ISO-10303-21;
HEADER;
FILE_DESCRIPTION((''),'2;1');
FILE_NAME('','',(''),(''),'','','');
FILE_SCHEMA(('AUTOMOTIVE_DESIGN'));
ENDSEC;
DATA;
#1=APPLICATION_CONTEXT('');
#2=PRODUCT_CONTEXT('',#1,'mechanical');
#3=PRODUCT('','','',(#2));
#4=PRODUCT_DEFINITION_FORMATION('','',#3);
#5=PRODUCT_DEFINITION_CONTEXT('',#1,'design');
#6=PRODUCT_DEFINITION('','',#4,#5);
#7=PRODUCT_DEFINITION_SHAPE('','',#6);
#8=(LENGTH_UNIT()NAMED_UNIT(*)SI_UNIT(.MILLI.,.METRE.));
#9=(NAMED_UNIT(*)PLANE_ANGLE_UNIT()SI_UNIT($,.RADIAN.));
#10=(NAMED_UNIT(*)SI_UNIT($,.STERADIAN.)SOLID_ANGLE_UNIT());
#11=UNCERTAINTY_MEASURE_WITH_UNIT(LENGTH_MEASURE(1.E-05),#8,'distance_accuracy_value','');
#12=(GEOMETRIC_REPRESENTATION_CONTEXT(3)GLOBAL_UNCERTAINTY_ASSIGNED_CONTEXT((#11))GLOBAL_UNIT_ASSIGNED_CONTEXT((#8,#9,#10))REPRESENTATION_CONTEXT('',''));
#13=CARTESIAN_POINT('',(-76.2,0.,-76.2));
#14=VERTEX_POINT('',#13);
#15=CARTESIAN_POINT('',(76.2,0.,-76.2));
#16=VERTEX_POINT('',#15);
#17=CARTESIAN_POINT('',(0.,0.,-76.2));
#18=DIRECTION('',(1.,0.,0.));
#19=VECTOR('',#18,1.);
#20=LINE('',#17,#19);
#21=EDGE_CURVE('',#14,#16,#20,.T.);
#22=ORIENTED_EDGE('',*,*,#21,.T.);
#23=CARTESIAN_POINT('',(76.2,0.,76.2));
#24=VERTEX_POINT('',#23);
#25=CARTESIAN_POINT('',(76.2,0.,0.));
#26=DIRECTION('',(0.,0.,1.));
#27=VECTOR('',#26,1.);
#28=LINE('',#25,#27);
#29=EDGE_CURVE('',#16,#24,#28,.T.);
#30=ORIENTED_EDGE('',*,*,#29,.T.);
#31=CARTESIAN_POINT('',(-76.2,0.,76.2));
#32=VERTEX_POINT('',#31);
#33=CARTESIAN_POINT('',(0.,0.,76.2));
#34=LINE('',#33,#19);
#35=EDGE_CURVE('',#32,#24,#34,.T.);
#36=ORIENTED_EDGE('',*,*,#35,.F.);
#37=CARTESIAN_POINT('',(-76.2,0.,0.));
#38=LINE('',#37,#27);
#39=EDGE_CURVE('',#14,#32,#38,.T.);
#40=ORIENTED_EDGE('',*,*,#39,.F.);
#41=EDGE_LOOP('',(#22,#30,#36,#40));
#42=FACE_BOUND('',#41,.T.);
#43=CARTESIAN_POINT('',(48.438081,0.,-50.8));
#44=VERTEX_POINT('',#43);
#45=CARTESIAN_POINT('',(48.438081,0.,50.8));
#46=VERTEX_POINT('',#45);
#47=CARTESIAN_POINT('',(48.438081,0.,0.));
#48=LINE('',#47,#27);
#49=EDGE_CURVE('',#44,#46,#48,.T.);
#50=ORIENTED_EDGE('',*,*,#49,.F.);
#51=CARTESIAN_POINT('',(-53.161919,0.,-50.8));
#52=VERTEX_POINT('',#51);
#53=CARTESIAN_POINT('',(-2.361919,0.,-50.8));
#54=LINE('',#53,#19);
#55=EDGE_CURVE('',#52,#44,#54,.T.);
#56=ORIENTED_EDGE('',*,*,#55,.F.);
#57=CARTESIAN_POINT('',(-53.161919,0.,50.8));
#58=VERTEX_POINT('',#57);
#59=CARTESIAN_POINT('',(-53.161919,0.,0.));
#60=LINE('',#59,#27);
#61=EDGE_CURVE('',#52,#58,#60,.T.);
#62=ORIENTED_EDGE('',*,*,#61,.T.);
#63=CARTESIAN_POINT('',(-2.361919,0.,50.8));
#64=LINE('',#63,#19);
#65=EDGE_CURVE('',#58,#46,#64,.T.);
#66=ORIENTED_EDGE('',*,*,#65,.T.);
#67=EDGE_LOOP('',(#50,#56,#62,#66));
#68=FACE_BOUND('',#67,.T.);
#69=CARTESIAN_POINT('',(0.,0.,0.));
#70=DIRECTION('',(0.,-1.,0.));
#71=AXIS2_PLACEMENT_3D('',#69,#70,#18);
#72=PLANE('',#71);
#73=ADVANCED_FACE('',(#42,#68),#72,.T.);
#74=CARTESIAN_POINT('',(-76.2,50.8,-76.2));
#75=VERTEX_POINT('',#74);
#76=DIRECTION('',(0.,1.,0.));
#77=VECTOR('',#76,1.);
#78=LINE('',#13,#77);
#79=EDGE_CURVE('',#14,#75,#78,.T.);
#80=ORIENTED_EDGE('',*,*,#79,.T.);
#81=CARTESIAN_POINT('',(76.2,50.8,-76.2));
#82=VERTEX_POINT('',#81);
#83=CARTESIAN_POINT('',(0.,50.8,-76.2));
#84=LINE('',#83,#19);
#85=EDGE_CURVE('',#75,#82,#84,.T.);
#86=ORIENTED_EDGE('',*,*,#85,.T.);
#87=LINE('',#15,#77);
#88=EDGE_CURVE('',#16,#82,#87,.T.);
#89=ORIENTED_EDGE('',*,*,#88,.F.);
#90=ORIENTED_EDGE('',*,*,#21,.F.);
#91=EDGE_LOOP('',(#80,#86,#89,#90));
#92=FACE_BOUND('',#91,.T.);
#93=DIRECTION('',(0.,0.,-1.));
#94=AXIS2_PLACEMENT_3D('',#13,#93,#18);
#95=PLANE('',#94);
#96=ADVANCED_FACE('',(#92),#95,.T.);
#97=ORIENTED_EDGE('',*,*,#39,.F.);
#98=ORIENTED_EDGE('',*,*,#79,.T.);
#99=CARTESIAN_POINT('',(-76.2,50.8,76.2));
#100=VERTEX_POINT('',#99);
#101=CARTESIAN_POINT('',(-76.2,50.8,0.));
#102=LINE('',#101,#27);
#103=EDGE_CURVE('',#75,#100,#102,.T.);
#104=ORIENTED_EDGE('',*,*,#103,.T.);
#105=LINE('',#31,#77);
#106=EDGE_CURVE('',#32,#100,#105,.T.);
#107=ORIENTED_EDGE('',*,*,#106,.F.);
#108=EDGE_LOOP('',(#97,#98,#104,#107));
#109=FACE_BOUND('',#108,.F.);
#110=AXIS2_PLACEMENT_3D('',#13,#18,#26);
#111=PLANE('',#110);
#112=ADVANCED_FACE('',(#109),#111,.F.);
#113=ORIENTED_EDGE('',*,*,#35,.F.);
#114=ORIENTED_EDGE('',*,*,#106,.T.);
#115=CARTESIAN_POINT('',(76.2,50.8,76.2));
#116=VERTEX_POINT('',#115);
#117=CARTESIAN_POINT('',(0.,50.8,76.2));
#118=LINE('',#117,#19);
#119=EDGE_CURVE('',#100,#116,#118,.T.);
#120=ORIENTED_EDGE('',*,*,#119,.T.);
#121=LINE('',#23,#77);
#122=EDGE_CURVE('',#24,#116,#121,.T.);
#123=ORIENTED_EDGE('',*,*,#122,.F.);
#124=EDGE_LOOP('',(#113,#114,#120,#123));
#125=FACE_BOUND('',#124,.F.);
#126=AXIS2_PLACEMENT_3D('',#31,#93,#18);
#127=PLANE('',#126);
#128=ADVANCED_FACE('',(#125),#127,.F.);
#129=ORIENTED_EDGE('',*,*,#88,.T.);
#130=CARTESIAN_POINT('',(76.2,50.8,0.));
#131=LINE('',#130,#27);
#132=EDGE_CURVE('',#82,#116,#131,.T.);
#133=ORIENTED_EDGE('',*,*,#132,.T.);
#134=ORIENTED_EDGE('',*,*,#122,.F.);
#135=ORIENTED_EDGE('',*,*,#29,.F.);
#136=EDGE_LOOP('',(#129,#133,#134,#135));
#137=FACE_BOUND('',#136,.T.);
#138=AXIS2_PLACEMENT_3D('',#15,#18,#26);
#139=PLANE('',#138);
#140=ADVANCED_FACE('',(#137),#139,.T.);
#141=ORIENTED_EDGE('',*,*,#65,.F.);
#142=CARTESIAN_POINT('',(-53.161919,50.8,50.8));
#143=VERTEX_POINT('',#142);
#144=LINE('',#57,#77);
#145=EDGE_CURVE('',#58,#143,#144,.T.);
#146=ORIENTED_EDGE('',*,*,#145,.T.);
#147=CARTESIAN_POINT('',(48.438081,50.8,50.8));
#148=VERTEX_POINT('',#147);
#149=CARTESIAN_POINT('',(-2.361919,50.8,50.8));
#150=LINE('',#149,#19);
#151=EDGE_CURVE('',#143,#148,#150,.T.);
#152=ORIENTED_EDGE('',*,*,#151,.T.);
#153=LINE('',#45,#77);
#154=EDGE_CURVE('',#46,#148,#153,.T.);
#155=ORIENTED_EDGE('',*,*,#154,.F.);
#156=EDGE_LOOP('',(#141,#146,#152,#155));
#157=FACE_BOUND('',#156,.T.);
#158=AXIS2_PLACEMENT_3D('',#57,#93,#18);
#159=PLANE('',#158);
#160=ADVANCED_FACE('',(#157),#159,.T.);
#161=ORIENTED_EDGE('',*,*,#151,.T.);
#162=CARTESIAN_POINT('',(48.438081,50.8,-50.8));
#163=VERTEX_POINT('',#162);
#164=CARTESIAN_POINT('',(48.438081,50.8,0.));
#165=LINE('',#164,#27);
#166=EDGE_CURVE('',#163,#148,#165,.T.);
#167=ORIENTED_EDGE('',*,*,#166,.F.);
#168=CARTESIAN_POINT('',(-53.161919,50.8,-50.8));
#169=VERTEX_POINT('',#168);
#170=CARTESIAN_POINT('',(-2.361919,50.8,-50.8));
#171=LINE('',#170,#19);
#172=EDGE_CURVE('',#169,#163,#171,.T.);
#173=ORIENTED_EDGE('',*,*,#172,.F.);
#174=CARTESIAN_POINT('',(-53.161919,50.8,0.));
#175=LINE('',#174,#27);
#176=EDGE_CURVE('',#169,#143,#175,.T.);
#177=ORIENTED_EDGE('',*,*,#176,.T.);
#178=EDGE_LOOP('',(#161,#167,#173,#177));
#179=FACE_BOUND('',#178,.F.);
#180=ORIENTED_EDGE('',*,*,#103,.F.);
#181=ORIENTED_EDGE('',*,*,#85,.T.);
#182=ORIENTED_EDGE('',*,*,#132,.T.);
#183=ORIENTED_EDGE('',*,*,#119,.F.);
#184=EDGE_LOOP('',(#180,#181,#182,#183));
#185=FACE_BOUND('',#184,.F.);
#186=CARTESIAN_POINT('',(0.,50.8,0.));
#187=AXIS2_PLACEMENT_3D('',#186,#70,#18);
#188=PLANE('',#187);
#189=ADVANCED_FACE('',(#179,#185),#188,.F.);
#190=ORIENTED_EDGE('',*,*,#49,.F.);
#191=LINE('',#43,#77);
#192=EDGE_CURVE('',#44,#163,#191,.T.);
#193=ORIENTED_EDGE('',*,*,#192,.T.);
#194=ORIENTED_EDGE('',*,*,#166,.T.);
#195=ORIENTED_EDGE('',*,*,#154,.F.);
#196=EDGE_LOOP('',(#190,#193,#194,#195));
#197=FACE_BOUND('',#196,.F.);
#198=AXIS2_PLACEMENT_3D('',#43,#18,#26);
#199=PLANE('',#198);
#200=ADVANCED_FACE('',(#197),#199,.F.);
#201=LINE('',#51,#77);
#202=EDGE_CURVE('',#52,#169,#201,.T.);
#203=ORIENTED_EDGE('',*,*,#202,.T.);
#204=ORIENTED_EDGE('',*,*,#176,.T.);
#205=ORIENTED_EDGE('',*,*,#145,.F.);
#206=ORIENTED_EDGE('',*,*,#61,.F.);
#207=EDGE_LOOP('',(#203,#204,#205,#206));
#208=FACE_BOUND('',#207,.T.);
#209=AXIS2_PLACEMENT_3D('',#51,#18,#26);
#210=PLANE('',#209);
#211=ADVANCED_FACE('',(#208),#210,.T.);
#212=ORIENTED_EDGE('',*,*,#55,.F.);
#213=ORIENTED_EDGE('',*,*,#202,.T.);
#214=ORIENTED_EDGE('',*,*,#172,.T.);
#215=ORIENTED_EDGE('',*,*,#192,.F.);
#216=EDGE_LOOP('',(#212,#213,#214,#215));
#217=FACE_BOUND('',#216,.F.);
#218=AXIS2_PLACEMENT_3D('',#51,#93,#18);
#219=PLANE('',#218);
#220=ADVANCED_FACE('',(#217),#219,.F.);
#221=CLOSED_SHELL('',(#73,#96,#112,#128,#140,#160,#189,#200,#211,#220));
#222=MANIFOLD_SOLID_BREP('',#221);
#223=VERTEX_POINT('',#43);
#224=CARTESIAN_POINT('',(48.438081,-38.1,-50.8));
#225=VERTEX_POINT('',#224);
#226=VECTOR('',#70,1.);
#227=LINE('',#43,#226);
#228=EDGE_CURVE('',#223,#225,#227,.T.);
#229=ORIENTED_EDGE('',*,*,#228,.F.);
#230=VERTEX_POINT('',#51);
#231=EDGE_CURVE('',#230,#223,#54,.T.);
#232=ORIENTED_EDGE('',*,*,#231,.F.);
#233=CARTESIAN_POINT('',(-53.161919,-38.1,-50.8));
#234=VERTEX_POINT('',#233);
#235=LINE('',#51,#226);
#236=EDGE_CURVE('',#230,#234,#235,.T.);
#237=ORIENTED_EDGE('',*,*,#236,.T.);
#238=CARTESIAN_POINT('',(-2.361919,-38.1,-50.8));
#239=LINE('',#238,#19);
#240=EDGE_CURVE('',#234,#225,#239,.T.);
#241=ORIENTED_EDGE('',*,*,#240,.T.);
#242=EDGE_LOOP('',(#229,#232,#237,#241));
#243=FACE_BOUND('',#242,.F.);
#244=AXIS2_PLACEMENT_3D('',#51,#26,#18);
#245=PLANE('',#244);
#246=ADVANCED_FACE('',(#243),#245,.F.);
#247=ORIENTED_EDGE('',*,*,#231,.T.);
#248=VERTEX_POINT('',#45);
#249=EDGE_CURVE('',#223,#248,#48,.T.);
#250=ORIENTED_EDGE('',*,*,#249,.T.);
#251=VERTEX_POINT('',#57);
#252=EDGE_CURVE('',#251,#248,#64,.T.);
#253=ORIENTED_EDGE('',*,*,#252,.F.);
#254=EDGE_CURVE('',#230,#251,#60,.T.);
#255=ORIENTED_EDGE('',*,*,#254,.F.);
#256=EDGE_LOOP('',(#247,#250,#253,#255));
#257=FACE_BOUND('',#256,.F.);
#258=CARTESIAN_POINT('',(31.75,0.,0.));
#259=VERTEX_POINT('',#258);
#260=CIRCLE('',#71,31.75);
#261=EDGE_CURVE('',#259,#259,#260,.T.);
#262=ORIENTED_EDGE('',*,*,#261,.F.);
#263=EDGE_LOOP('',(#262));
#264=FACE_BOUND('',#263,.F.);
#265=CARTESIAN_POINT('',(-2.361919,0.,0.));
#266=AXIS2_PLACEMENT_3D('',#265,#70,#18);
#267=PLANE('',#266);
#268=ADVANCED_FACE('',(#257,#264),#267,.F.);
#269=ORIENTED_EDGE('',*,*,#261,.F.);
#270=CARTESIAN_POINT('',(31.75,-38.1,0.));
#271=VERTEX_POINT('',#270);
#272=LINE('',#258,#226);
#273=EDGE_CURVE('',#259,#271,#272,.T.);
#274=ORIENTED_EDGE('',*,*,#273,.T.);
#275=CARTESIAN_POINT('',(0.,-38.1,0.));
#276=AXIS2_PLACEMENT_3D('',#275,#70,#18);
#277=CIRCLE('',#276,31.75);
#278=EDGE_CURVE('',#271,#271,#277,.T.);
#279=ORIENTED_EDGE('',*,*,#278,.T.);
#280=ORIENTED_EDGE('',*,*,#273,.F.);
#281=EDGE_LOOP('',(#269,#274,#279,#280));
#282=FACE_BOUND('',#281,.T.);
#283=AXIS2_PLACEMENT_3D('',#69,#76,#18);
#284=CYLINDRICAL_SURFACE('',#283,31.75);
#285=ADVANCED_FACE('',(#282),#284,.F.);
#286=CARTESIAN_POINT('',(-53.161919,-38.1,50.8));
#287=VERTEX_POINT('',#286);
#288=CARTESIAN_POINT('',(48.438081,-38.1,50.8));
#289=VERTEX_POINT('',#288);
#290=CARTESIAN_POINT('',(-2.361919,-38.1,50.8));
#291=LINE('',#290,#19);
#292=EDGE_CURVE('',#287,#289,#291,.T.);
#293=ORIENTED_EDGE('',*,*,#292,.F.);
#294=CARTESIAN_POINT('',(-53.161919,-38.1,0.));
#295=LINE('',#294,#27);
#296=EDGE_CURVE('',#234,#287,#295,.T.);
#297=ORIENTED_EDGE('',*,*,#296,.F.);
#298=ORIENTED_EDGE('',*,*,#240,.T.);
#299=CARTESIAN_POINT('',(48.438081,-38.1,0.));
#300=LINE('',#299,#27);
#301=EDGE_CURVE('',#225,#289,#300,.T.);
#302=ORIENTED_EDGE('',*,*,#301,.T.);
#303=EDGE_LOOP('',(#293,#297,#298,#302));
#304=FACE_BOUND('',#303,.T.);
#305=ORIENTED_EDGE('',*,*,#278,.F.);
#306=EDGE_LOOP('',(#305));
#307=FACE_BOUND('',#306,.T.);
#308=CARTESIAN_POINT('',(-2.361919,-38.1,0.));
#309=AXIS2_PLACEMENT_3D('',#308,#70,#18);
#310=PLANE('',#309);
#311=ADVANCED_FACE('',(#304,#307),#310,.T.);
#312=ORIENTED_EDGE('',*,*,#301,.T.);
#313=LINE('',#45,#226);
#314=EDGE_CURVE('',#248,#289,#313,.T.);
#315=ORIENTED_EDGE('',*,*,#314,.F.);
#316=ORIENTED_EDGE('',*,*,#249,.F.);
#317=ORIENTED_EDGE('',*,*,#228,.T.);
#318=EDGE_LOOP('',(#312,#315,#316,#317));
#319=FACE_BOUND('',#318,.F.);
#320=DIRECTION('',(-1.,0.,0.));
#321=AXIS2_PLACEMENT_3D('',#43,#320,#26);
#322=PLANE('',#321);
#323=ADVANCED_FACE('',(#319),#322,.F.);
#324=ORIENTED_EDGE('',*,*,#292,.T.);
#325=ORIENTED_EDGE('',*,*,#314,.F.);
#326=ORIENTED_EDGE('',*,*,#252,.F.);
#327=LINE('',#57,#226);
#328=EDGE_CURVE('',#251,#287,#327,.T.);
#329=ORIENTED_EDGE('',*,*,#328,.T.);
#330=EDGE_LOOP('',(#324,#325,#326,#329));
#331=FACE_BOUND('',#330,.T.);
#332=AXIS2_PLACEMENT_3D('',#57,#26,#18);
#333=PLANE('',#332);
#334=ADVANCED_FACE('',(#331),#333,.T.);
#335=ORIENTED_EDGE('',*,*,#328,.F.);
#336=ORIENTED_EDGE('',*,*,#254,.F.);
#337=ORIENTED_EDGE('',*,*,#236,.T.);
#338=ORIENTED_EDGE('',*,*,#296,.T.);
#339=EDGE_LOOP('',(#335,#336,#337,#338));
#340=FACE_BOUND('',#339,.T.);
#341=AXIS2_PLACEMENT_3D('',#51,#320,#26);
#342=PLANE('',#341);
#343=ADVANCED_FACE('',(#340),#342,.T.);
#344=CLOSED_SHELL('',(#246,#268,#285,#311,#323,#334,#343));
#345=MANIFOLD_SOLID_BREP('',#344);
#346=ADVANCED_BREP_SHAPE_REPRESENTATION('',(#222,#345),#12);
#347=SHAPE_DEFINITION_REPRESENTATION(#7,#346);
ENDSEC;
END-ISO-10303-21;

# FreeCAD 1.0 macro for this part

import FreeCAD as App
import Part
import Sketcher
Q = App.Units.Quantity


def add_polygon(sketch, points):
    """Adds a closed chain of lines whose ends are joined by coincident constraints."""
    first, n = sketch.GeometryCount, len(points)
    for a, b in zip(points, points[1:] + points[:1]):
        sketch.addGeometry(Part.LineSegment(App.Vector(*a, 0), App.Vector(*b, 0)), False)
    for i in range(n):
        sketch.addConstraint(Sketcher.Constraint("Coincident", first + i, 2, first + (i + 1) % n, 1))

doc = App.newDocument("Part")
body = doc.addObject("PartDesign::Body", "Body")
body.AllowCompound = True

sketch1 = doc.addObject("Sketcher::SketchObject", "Sketch")
body.addObject(sketch1)
sketch1.AttachmentSupport = (doc.XZ_Plane, [""])
sketch1.MapMode = "FlatFace"
add_polygon(sketch1, [(-53, 51), (-53, -51), (48, -51), (48, 51)])
sketch1.addGeometry(Part.Circle(App.Vector(0, 0, 0), App.Vector(0, 0, 1), 32), False)
sketch1.addConstraint([
    Sketcher.Constraint("Vertical", 0),
    Sketcher.Constraint("Horizontal", 1),
    Sketcher.Constraint("Vertical", 2),
    Sketcher.Constraint("Horizontal", 3),
    Sketcher.Constraint("Coincident", 4, 3, -1, 1),
    Sketcher.Constraint("Equal", 3, 0),
    Sketcher.Constraint("Diameter", 4, Q("2.5 in")),
    Sketcher.Constraint("DistanceX", 1, 1, 1, 2, Q("4 in")),
    Sketcher.Constraint("DistanceY", 0, 2, -1, 1, Q("2 in")),
    Sketcher.Constraint("DistanceX", 0, 2, -1, 1, 53.161919),
])
pad1 = doc.addObject("PartDesign::Pad", "Pad")
body.addObject(pad1)
pad1.Profile = sketch1
pad1.Length = Q("1.5 in")

sketch2 = doc.addObject("Sketcher::SketchObject", "Sketch001")
body.addObject(sketch2)
sketch2.AttachmentSupport = (doc.XZ_Plane, [""])
sketch2.MapMode = "FlatFace"
add_polygon(sketch2, [(-76, 76), (-76, -76), (76, -76), (76, 76)])
add_polygon(sketch2, [(48, -51), (-53, -51), (-53, 51), (48, 51)])
sketch2.addConstraint([
    Sketcher.Constraint("Vertical", 0),
    Sketcher.Constraint("Horizontal", 1),
    Sketcher.Constraint("Vertical", 2),
    Sketcher.Constraint("Horizontal", 3),
    Sketcher.Constraint("Horizontal", 4),
    Sketcher.Constraint("Vertical", 5),
    Sketcher.Constraint("Horizontal", 6),
    Sketcher.Constraint("Vertical", 7),
    Sketcher.Constraint("Symmetric", 0, 2, 2, 2, -1, 1),
    Sketcher.Constraint("Equal", 3, 0),
    Sketcher.Constraint("Equal", 6, 5),
    Sketcher.Constraint("DistanceX", 1, 1, 1, 2, Q("6 in")),
    Sketcher.Constraint("DistanceX", 4, 2, 4, 1, Q("4 in")),
    Sketcher.Constraint("DistanceY", 4, 2, -1, 1, Q("2 in")),
    Sketcher.Constraint("DistanceX", 4, 2, -1, 1, 53.161919),
])
pad2 = doc.addObject("PartDesign::Pad", "Pad001")
body.addObject(pad2)
pad2.Profile = sketch2
pad2.Length = Q("2 in")
pad2.Reversed = True

doc.recompute()
